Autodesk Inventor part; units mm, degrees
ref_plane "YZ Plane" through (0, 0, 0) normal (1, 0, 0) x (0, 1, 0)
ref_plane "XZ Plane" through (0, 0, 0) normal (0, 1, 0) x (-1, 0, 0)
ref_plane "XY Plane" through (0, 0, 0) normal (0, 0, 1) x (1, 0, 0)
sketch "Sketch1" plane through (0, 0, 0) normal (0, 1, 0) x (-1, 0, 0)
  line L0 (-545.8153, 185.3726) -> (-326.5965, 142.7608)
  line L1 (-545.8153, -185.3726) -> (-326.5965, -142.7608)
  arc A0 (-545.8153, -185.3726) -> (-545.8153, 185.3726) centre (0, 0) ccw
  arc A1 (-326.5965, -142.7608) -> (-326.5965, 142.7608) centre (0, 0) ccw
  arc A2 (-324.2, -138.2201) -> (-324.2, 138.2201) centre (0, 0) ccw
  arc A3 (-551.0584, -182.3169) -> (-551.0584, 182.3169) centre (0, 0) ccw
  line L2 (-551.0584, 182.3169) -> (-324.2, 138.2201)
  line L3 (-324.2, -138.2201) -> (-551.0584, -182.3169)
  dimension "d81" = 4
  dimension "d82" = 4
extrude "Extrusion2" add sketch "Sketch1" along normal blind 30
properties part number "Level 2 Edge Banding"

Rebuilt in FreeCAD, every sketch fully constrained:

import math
import FreeCAD as App
import Part
import Sketcher

V = App.Vector
Q = App.Units.Quantity

doc = App.newDocument("Part")
params = doc.addObject("Spreadsheet::Sheet", "Params")
for row, (alias, value) in enumerate([
    ("pad1_length", "30 mm"),
], start=1):
    params.set(f"A{row}", alias)
    params.set(f"B{row}", "=" + value)
    params.setAlias(f"B{row}", alias)

body = doc.addObject("PartDesign::Body", "Body")

# Sketch on XZ plane
sketch1 = body.newObject("Sketcher::SketchObject", "Sketch")
sketch1.AttachmentSupport = (doc.getObject("XZ_Plane"), [""])
sketch1.MapMode = "FlatFace"
sketch1.addGeometry([
    Part.ArcOfCircle(Part.Circle(V(0, 0, 0), V(0, 0, 1), 352), math.radians(23), math.radians(337)),  # 0
    Part.LineSegment(V(324, -138, 0), V(551, -182, 0)),  # 1
    Part.ArcOfCircle(Part.Circle(V(0, 0, 0), V(0, 0, 1), 580), math.radians(18), math.radians(342)),  # 2
    Part.LineSegment(V(551, 182, 0), V(324, 138, 0)),  # 3
    Part.LineSegment(V(327, 143, 0), V(546, 185, 0)),  # 4
    Part.ArcOfCircle(Part.Circle(V(0, 0, 0), V(0, 0, 1), 576), math.radians(19), math.radians(341)),  # 5
    Part.LineSegment(V(546, -185, 0), V(327, -143, 0)),  # 6
    Part.ArcOfCircle(Part.Circle(V(0, 0, 0), V(0, 0, 1), 356), math.radians(24), math.radians(336)),  # 7
], False)
sketch1.addConstraint([
    Sketcher.Constraint("Coincident", 0, 2, 1, 1),
    Sketcher.Constraint("Coincident", 1, 2, 2, 2),
    Sketcher.Constraint("Coincident", 2, 1, 3, 1),
    Sketcher.Constraint("Coincident", 3, 2, 0, 1),
    Sketcher.Constraint("Coincident", 4, 2, 5, 1),
    Sketcher.Constraint("Coincident", 5, 2, 6, 1),
    Sketcher.Constraint("Coincident", 6, 2, 7, 2),
    Sketcher.Constraint("Coincident", 7, 1, 4, 1),
    Sketcher.Constraint("Coincident", 0, 3, -1, 1),
    Sketcher.Constraint("Coincident", 2, 3, -1, 1),
    Sketcher.Constraint("Coincident", 5, 3, -1, 1),
    Sketcher.Constraint("Coincident", 7, 3, -1, 1),
    Sketcher.Constraint("Parallel", 3, 4),
    Sketcher.Constraint("Parallel", 1, 6),
    Sketcher.Constraint("Vertical", 1, 2, 2, 1),
    Sketcher.Constraint("Vertical", 0, 2, 3, 2),
    Sketcher.Constraint("Vertical", 6, 2, 7, 1),
    Sketcher.Constraint("Angle", 1, Q("-11 deg")),
    Sketcher.Constraint("Radius", 0, Q("352.435 mm")),
    Sketcher.Constraint("Radius", 2, Q("580.435 mm")),
    Sketcher.Constraint("Radius", 5, Q("576.435 mm")),
    Sketcher.Constraint("Radius", 7, Q("356.435 mm")),
    Sketcher.Constraint("DistanceX", -1, 1, 3, 2, Q("324.2 mm")),
    Sketcher.Constraint("DistanceX", 4, 2, 1, 2, Q("5.243 mm")),
])
pad1 = body.newObject("PartDesign::Pad", "Pad")
pad1.Profile = sketch1
pad1.setExpression("Length", "Params.pad1_length")
pad1.Reversed = True

doc.recompute()
